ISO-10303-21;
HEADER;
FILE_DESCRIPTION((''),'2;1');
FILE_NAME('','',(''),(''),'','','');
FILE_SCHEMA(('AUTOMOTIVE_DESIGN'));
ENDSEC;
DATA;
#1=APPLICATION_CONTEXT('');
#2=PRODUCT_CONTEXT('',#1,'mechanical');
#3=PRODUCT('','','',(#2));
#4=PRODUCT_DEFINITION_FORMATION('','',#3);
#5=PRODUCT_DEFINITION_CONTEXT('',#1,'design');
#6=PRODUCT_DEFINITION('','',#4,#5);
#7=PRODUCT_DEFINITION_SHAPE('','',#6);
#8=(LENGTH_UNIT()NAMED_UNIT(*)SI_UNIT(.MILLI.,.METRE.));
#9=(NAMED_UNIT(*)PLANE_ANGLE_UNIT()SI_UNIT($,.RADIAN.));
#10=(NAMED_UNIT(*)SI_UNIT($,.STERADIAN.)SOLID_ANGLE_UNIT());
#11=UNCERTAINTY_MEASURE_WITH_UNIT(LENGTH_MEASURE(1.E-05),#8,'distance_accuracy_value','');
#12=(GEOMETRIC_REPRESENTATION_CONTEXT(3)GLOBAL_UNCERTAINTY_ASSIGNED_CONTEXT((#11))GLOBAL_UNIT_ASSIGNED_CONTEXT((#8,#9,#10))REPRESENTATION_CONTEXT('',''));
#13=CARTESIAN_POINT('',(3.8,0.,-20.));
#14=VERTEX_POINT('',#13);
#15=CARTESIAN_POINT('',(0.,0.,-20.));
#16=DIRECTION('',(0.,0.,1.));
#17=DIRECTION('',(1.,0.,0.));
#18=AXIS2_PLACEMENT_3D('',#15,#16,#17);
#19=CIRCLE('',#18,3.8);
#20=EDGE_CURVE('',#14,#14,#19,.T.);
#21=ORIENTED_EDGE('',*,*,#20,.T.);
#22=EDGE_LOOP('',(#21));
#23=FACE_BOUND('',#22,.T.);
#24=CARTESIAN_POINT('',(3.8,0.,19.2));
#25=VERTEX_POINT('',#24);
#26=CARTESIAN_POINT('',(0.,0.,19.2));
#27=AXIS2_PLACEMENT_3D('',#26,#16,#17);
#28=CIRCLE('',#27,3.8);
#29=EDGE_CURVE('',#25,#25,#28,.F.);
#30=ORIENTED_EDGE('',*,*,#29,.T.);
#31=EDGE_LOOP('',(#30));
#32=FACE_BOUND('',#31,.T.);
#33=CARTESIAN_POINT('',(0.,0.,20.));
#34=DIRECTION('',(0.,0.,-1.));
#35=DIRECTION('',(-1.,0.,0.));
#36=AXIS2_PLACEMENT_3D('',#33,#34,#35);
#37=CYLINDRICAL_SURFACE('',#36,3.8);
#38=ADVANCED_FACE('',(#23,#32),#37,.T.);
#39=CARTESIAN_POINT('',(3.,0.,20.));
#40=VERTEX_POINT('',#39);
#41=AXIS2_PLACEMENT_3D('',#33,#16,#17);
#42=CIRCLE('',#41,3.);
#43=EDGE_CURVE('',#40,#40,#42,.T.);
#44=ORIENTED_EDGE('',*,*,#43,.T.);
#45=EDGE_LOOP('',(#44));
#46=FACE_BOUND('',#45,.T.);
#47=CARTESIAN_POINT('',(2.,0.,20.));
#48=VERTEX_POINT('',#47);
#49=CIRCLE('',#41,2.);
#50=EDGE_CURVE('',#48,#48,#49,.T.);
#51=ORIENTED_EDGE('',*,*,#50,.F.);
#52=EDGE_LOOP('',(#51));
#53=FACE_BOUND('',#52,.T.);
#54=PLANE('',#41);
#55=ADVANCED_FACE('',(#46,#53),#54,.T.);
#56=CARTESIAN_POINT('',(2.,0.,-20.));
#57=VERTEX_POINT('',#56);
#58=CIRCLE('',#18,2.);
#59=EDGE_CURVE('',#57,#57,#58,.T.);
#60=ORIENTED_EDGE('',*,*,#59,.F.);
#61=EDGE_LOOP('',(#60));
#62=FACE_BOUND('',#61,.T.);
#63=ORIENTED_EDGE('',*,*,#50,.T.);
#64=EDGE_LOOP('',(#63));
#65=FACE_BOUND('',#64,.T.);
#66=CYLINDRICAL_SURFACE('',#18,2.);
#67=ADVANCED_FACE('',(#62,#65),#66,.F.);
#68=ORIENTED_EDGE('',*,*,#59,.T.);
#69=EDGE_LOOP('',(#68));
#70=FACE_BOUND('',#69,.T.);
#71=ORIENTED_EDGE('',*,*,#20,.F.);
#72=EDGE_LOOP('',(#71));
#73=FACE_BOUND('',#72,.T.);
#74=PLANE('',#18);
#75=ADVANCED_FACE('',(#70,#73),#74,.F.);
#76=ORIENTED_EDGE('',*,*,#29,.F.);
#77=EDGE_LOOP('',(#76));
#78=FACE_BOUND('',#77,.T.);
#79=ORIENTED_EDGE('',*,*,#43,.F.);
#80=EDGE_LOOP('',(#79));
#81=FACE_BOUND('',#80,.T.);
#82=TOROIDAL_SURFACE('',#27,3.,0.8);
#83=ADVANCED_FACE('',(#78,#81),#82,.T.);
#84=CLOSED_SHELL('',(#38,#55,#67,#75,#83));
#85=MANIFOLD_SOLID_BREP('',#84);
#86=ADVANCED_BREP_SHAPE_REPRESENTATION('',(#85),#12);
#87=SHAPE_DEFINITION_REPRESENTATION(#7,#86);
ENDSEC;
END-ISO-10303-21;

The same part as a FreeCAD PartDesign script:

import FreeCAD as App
import Part
import Sketcher
from FreeCAD import Vector


def edges_at(feature, points):
    """Names of the edges that pass closest to the given points."""
    edges = feature.Shape.Edges
    near = lambda p: min(range(len(edges)), key=lambda i: edges[i].distToShape(Part.Vertex(*p))[0])
    return sorted({f"Edge{near(p) + 1}" for p in points})

doc = App.newDocument("Part")
params = doc.addObject("Spreadsheet::Sheet", "Params")
for row, (alias, value) in enumerate([
    ("sketch1_diameter", "7.6 mm"),
    ("pad1_length", "40 mm"),
    ("sketch2_diameter", "4 mm"),
    ("fillet_radius", "0.8 mm"),
], start=1):
    params.set(f"A{row}", alias)
    params.set(f"B{row}", "=" + value)
    params.setAlias(f"B{row}", alias)

body = doc.addObject("PartDesign::Body", "Body")

# Sketch on XY plane
sketch1 = body.newObject("Sketcher::SketchObject", "Sketch")
sketch1.AttachmentSupport = (doc.getObject("XY_Plane"), [""])
sketch1.MapMode = "FlatFace"
sketch1.addGeometry(Part.Circle(Vector(0, 0, 0), Vector(0, 0, 1), 3.8), False)
sketch1.addConstraint(Sketcher.Constraint("Coincident", 0, 3, -1, 1))
sketch1.addConstraint(Sketcher.Constraint("Diameter", 0, 7.6))
sketch1.setExpression("Constraints[1]", "Params.sketch1_diameter")
pad1 = body.newObject("PartDesign::Pad", "Pad")
pad1.Profile = sketch1
pad1.setExpression("Length", "Params.pad1_length")
pad1.Midplane = True

# Sketch on XY plane
sketch2 = body.newObject("Sketcher::SketchObject", "Sketch001")
sketch2.AttachmentSupport = (doc.getObject("XY_Plane"), [""])
sketch2.MapMode = "FlatFace"
sketch2.addGeometry(Part.Circle(Vector(0, 0, 0), Vector(0, 0, 1), 2), False)
sketch2.addConstraint(Sketcher.Constraint("Coincident", 0, 3, -1, 1))
sketch2.addConstraint(Sketcher.Constraint("Diameter", 0, 4.0))
sketch2.setExpression("Constraints[1]", "Params.sketch2_diameter")
pocket1 = body.newObject("PartDesign::Pocket", "Pocket")
pocket1.Profile = sketch2
pocket1.Type = "ThroughAll"
pocket1.Midplane = True
doc.recompute()

fillet = body.newObject("PartDesign::Fillet", "Fillet")
fillet.Base = (pocket1, edges_at(pocket1, [(-3.8, 0, 20)]))
fillet.setExpression("Radius", "Params.fillet_radius")

doc.recompute()
